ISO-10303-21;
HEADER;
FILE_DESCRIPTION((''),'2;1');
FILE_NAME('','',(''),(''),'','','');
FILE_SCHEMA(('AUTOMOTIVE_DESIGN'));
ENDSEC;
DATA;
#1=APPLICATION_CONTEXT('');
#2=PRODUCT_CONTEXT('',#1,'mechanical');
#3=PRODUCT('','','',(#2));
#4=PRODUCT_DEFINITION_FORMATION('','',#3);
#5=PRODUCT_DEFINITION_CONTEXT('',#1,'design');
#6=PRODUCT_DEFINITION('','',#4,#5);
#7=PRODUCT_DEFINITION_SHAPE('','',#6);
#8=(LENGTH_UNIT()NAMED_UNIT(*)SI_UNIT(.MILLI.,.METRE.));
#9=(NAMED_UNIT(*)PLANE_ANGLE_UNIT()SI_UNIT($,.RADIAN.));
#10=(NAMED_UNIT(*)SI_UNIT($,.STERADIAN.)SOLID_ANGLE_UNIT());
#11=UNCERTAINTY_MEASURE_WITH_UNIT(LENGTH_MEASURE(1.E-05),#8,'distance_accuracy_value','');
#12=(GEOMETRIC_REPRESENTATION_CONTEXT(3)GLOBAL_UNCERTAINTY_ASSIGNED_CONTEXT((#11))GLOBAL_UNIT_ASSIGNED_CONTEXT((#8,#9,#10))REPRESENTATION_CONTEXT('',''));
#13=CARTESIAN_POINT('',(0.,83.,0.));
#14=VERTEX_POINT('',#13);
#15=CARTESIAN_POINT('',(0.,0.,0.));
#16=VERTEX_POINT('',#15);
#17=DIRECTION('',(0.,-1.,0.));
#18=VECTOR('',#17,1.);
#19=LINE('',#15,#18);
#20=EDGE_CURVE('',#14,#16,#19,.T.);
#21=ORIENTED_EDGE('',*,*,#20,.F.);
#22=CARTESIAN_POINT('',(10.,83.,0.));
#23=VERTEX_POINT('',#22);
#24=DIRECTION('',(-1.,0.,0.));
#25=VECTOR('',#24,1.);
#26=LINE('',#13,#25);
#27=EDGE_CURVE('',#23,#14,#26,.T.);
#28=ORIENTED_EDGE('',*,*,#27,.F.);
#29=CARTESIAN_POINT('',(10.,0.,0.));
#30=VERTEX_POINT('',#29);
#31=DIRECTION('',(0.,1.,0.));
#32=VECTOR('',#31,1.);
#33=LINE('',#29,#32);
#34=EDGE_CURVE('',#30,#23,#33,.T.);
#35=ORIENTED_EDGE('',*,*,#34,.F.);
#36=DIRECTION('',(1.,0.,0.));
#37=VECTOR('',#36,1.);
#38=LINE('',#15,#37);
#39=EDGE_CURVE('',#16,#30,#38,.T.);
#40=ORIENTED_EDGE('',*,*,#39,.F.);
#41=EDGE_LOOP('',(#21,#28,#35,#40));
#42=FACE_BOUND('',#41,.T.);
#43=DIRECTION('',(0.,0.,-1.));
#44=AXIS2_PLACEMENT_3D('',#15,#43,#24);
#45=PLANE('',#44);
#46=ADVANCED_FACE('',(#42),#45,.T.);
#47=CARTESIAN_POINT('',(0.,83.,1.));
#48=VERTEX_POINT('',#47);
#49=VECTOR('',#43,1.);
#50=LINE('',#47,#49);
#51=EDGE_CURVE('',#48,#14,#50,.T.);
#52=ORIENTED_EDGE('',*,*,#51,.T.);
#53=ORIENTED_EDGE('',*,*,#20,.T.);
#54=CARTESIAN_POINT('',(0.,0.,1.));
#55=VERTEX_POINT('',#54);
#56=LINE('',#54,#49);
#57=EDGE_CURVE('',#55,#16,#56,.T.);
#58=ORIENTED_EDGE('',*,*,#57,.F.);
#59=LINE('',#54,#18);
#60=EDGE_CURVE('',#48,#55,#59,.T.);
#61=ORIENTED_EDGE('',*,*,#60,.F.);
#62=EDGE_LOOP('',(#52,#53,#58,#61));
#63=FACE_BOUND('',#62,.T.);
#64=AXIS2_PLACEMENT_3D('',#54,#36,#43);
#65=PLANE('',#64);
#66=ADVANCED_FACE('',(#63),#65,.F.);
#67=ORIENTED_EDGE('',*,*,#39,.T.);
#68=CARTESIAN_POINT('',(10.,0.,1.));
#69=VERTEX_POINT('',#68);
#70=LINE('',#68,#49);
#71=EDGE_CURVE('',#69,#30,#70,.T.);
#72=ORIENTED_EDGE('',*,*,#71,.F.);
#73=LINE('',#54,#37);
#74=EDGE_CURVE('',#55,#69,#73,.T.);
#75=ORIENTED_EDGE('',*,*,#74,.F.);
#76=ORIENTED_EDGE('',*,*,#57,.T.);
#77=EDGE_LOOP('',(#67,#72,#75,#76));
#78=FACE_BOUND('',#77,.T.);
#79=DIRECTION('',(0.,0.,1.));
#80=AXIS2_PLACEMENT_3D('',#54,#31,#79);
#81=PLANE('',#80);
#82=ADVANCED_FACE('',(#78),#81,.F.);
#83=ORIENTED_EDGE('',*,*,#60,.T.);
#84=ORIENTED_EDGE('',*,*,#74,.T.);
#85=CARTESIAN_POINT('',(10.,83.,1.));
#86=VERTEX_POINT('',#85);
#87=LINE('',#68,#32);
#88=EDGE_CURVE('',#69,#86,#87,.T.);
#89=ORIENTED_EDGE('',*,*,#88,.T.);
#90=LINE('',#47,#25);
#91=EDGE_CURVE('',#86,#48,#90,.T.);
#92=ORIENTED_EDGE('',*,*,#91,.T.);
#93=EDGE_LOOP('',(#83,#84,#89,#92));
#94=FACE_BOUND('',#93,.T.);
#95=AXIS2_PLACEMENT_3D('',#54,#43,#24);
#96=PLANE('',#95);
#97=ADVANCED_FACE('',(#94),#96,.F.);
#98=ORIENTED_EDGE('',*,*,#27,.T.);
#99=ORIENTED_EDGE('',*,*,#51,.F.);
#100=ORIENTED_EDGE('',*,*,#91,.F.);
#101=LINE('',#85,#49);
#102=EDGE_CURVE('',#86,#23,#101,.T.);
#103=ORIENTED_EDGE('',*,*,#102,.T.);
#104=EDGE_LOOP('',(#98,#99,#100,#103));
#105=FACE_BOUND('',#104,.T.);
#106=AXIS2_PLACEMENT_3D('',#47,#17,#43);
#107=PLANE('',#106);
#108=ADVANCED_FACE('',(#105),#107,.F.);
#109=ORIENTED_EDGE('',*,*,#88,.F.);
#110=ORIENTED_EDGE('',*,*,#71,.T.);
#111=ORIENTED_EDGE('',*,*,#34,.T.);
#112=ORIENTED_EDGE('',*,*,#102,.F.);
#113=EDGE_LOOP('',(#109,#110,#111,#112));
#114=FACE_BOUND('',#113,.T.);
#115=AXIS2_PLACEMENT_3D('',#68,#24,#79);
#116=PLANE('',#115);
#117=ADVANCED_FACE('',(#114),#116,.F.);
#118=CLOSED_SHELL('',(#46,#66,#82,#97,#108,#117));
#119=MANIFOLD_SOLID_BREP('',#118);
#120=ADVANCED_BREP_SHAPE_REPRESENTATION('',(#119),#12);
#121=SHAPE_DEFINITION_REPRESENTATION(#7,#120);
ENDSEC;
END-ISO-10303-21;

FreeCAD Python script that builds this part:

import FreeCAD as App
import Part
import Sketcher
from FreeCAD import Vector


def add_polygon(sketch, points):
    """Adds a closed chain of lines whose ends are joined by coincident constraints."""
    first, n = sketch.GeometryCount, len(points)
    for a, b in zip(points, points[1:] + points[:1]):
        sketch.addGeometry(Part.LineSegment(App.Vector(*a, 0), App.Vector(*b, 0)), False)
    for i in range(n):
        sketch.addConstraint(Sketcher.Constraint("Coincident", first + i, 2, first + (i + 1) % n, 1))

doc = App.newDocument("Part")
params = doc.addObject("Spreadsheet::Sheet", "Params")
for row, (alias, value) in enumerate([
    ("sketch1_width", "10 mm"),
    ("sketch1_height", "83 mm"),
    ("pad1_length", "1 mm"),
], start=1):
    params.set(f"A{row}", alias)
    params.set(f"B{row}", "=" + value)
    params.setAlias(f"B{row}", alias)

body = doc.addObject("PartDesign::Body", "Body")

# Sketch on XY plane
sketch1 = body.newObject("Sketcher::SketchObject", "Sketch")
sketch1.AttachmentSupport = (doc.getObject("XY_Plane"), [""])
sketch1.MapMode = "FlatFace"
add_polygon(sketch1, [(0, 83), (0, 0), (10, 0), (10, 83)])  # lines 0-3
sketch1.addConstraint([
    Sketcher.Constraint("Vertical", 0),
    Sketcher.Constraint("Horizontal", 1),
    Sketcher.Constraint("Vertical", 2),
    Sketcher.Constraint("Horizontal", 3),
    Sketcher.Constraint("Coincident", 0, 2, -1, 1),
    Sketcher.Constraint("DistanceX", 1, 1, 1, 2, 10.0),
    Sketcher.Constraint("DistanceY", 0, 2, 0, 1, 83.0),
])
sketch1.setExpression("Constraints[9]", "Params.sketch1_width")
sketch1.setExpression("Constraints[10]", "Params.sketch1_height")
pad1 = body.newObject("PartDesign::Pad", "Pad")
pad1.Profile = sketch1
pad1.setExpression("Length", "Params.pad1_length")

doc.recompute()
